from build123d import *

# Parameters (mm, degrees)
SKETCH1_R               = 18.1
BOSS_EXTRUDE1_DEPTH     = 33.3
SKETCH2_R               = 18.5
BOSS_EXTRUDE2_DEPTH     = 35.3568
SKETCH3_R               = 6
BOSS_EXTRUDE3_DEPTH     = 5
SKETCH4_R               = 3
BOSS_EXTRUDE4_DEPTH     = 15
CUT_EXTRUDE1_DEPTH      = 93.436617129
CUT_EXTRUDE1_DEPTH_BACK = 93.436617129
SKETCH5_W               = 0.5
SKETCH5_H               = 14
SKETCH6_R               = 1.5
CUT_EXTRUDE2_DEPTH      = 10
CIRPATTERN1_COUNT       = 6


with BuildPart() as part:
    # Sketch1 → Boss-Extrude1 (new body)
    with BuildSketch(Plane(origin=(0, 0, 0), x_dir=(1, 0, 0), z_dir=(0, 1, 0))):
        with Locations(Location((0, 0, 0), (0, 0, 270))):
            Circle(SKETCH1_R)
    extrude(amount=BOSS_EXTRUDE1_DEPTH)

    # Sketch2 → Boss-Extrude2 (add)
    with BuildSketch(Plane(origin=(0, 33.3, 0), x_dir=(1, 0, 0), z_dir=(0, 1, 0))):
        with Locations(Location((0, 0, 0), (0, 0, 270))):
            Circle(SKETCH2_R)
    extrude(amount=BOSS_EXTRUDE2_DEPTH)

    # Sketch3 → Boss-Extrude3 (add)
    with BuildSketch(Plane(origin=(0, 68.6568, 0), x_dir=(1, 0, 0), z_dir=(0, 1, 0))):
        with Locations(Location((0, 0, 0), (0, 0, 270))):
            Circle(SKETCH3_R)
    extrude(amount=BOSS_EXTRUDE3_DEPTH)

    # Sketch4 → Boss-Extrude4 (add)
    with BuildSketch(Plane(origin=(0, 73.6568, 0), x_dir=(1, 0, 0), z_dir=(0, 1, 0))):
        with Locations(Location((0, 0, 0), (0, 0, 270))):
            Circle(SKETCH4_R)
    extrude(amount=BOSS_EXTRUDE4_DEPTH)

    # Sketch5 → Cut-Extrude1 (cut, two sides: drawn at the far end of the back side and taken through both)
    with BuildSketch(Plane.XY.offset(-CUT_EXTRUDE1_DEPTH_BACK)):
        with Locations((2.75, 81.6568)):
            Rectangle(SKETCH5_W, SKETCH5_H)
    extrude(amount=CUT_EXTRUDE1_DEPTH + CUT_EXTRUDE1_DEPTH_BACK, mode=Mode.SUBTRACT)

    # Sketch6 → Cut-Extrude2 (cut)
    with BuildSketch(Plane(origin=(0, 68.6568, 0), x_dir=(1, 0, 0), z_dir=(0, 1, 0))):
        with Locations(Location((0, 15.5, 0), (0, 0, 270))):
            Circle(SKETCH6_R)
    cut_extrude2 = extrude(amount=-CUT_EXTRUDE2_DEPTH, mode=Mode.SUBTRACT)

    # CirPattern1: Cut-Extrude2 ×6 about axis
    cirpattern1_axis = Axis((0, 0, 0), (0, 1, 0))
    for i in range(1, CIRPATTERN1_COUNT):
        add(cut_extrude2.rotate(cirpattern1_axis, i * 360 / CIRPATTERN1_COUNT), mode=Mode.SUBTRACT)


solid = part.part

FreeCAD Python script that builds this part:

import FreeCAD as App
import Part
import Sketcher

doc = App.newDocument("Part")
body = doc.addObject("PartDesign::Body", "Body")

# Sketch on XZ plane
sketch1 = body.newObject("Sketcher::SketchObject", "Sketch")
sketch1.AttachmentSupport = (doc.getObject("XZ_Plane"), [""])
sketch1.MapMode = "FlatFace"
sketch1.addGeometry(Part.Circle(App.Vector(0, 0, 0), App.Vector(0, 0, 1), 18.1), False)
sketch1.addConstraint([
    Sketcher.Constraint("Coincident", 0, 3, -1, 1),
    Sketcher.Constraint("Diameter", 0, 36.2),
])
pad1 = body.newObject("PartDesign::Pad", "Pad")
pad1.Profile = sketch1
pad1.Length = 33.3
pad1.Reversed = True

# Sketch on XZ plane
sketch2 = body.newObject("Sketcher::SketchObject", "Sketch001")
sketch2.AttachmentSupport = (doc.getObject("XZ_Plane"), [""])
sketch2.MapMode = "FlatFace"
sketch2.AttachmentOffset = App.Placement(App.Vector(0, 0, -33.3), App.Rotation())
sketch2.addGeometry(Part.Circle(App.Vector(0, 0, 0), App.Vector(0, 0, 1), 18.5), False)
sketch2.addConstraint([
    Sketcher.Constraint("Coincident", 0, 3, -1, 1),
    Sketcher.Constraint("Diameter", 0, 37.0),
])
pad2 = body.newObject("PartDesign::Pad", "Pad001")
pad2.Profile = sketch2
pad2.Length = 35.3568
pad2.Reversed = True

# Sketch on XZ plane
sketch3 = body.newObject("Sketcher::SketchObject", "Sketch002")
sketch3.AttachmentSupport = (doc.getObject("XZ_Plane"), [""])
sketch3.MapMode = "FlatFace"
sketch3.AttachmentOffset = App.Placement(App.Vector(0, 0, -68.6568), App.Rotation())
sketch3.addGeometry(Part.Circle(App.Vector(0, 0, 0), App.Vector(0, 0, 1), 6), False)
sketch3.addConstraint([
    Sketcher.Constraint("Coincident", 0, 3, -1, 1),
    Sketcher.Constraint("Diameter", 0, 12.0),
])
pad3 = body.newObject("PartDesign::Pad", "Pad002")
pad3.Profile = sketch3
pad3.Length = 5
pad3.Reversed = True

# Sketch on XZ plane
sketch4 = body.newObject("Sketcher::SketchObject", "Sketch003")
sketch4.AttachmentSupport = (doc.getObject("XZ_Plane"), [""])
sketch4.MapMode = "FlatFace"
sketch4.AttachmentOffset = App.Placement(App.Vector(0, 0, -73.6568), App.Rotation())
sketch4.addGeometry(Part.Circle(App.Vector(0, 0, 0), App.Vector(0, 0, 1), 3), False)
sketch4.addConstraint([
    Sketcher.Constraint("Coincident", 0, 3, -1, 1),
    Sketcher.Constraint("Diameter", 0, 6.0),
])
pad4 = body.newObject("PartDesign::Pad", "Pad003")
pad4.Profile = sketch4
pad4.Length = 15
pad4.Reversed = True

# Sketch on XY plane
sketch5 = body.newObject("Sketcher::SketchObject", "Sketch004")
sketch5.AttachmentSupport = (doc.getObject("XY_Plane"), [""])
sketch5.MapMode = "FlatFace"
sketch5.addGeometry([
    Part.LineSegment(App.Vector(2.5, 88.6568, 0), App.Vector(2.5, 74.6568, 0)),
    Part.LineSegment(App.Vector(2.5, 74.6568, 0), App.Vector(3, 74.6568, 0)),
    Part.LineSegment(App.Vector(3, 74.6568, 0), App.Vector(3, 88.6568, 0)),
    Part.LineSegment(App.Vector(3, 88.6568, 0), App.Vector(2.5, 88.6568, 0)),
], False)
sketch5.addConstraint([
    Sketcher.Constraint("Coincident", 0, 2, 1, 1),
    Sketcher.Constraint("Coincident", 1, 2, 2, 1),
    Sketcher.Constraint("Coincident", 2, 2, 3, 1),
    Sketcher.Constraint("Coincident", 3, 2, 0, 1),
    Sketcher.Constraint("Vertical", 0),
    Sketcher.Constraint("Horizontal", 1),
    Sketcher.Constraint("Vertical", 2),
    Sketcher.Constraint("Horizontal", 3),
    Sketcher.Constraint("DistanceY", 0, 2, 0, 1, 14.0),
    Sketcher.Constraint("DistanceX", 1, 1, 1, 2, 0.5),
    Sketcher.Constraint("DistanceX", -1, 1, 1, 2, 3.0),
    Sketcher.Constraint("DistanceY", -1, 1, 0, 2, 74.6568),
])
pocket1 = body.newObject("PartDesign::Pocket", "Pocket")
pocket1.Profile = sketch5
pocket1.Type = "ThroughAll"
pocket1.Midplane = True

# Sketch on XZ plane
sketch6 = body.newObject("Sketcher::SketchObject", "Sketch005")
sketch6.AttachmentSupport = (doc.getObject("XZ_Plane"), [""])
sketch6.MapMode = "FlatFace"
sketch6.AttachmentOffset = App.Placement(App.Vector(0, 0, -68.6568), App.Rotation())
sketch6.addGeometry(Part.Circle(App.Vector(0, -15.5, 0), App.Vector(0, 0, 1), 1.5), False)
sketch6.addConstraint([
    Sketcher.Constraint("PointOnObject", 0, 3, -2),
    Sketcher.Constraint("Diameter", 0, 3.0),
    Sketcher.Constraint("DistanceY", 0, 3, -1, 1, 15.5),
])
pocket2 = body.newObject("PartDesign::Pocket", "Pocket001")
pocket2.Profile = sketch6
pocket2.Length = 10
pocket2.Reversed = True
doc.recompute()

polarpattern = body.newObject("PartDesign::PolarPattern", "PolarPattern")
polarpattern.Originals = [pocket2]
polarpattern.Axis = (doc.getObject("Y_Axis"), [""])
polarpattern.Angle = 360
polarpattern.Occurrences = 6
body.Tip = polarpattern

doc.recompute()
